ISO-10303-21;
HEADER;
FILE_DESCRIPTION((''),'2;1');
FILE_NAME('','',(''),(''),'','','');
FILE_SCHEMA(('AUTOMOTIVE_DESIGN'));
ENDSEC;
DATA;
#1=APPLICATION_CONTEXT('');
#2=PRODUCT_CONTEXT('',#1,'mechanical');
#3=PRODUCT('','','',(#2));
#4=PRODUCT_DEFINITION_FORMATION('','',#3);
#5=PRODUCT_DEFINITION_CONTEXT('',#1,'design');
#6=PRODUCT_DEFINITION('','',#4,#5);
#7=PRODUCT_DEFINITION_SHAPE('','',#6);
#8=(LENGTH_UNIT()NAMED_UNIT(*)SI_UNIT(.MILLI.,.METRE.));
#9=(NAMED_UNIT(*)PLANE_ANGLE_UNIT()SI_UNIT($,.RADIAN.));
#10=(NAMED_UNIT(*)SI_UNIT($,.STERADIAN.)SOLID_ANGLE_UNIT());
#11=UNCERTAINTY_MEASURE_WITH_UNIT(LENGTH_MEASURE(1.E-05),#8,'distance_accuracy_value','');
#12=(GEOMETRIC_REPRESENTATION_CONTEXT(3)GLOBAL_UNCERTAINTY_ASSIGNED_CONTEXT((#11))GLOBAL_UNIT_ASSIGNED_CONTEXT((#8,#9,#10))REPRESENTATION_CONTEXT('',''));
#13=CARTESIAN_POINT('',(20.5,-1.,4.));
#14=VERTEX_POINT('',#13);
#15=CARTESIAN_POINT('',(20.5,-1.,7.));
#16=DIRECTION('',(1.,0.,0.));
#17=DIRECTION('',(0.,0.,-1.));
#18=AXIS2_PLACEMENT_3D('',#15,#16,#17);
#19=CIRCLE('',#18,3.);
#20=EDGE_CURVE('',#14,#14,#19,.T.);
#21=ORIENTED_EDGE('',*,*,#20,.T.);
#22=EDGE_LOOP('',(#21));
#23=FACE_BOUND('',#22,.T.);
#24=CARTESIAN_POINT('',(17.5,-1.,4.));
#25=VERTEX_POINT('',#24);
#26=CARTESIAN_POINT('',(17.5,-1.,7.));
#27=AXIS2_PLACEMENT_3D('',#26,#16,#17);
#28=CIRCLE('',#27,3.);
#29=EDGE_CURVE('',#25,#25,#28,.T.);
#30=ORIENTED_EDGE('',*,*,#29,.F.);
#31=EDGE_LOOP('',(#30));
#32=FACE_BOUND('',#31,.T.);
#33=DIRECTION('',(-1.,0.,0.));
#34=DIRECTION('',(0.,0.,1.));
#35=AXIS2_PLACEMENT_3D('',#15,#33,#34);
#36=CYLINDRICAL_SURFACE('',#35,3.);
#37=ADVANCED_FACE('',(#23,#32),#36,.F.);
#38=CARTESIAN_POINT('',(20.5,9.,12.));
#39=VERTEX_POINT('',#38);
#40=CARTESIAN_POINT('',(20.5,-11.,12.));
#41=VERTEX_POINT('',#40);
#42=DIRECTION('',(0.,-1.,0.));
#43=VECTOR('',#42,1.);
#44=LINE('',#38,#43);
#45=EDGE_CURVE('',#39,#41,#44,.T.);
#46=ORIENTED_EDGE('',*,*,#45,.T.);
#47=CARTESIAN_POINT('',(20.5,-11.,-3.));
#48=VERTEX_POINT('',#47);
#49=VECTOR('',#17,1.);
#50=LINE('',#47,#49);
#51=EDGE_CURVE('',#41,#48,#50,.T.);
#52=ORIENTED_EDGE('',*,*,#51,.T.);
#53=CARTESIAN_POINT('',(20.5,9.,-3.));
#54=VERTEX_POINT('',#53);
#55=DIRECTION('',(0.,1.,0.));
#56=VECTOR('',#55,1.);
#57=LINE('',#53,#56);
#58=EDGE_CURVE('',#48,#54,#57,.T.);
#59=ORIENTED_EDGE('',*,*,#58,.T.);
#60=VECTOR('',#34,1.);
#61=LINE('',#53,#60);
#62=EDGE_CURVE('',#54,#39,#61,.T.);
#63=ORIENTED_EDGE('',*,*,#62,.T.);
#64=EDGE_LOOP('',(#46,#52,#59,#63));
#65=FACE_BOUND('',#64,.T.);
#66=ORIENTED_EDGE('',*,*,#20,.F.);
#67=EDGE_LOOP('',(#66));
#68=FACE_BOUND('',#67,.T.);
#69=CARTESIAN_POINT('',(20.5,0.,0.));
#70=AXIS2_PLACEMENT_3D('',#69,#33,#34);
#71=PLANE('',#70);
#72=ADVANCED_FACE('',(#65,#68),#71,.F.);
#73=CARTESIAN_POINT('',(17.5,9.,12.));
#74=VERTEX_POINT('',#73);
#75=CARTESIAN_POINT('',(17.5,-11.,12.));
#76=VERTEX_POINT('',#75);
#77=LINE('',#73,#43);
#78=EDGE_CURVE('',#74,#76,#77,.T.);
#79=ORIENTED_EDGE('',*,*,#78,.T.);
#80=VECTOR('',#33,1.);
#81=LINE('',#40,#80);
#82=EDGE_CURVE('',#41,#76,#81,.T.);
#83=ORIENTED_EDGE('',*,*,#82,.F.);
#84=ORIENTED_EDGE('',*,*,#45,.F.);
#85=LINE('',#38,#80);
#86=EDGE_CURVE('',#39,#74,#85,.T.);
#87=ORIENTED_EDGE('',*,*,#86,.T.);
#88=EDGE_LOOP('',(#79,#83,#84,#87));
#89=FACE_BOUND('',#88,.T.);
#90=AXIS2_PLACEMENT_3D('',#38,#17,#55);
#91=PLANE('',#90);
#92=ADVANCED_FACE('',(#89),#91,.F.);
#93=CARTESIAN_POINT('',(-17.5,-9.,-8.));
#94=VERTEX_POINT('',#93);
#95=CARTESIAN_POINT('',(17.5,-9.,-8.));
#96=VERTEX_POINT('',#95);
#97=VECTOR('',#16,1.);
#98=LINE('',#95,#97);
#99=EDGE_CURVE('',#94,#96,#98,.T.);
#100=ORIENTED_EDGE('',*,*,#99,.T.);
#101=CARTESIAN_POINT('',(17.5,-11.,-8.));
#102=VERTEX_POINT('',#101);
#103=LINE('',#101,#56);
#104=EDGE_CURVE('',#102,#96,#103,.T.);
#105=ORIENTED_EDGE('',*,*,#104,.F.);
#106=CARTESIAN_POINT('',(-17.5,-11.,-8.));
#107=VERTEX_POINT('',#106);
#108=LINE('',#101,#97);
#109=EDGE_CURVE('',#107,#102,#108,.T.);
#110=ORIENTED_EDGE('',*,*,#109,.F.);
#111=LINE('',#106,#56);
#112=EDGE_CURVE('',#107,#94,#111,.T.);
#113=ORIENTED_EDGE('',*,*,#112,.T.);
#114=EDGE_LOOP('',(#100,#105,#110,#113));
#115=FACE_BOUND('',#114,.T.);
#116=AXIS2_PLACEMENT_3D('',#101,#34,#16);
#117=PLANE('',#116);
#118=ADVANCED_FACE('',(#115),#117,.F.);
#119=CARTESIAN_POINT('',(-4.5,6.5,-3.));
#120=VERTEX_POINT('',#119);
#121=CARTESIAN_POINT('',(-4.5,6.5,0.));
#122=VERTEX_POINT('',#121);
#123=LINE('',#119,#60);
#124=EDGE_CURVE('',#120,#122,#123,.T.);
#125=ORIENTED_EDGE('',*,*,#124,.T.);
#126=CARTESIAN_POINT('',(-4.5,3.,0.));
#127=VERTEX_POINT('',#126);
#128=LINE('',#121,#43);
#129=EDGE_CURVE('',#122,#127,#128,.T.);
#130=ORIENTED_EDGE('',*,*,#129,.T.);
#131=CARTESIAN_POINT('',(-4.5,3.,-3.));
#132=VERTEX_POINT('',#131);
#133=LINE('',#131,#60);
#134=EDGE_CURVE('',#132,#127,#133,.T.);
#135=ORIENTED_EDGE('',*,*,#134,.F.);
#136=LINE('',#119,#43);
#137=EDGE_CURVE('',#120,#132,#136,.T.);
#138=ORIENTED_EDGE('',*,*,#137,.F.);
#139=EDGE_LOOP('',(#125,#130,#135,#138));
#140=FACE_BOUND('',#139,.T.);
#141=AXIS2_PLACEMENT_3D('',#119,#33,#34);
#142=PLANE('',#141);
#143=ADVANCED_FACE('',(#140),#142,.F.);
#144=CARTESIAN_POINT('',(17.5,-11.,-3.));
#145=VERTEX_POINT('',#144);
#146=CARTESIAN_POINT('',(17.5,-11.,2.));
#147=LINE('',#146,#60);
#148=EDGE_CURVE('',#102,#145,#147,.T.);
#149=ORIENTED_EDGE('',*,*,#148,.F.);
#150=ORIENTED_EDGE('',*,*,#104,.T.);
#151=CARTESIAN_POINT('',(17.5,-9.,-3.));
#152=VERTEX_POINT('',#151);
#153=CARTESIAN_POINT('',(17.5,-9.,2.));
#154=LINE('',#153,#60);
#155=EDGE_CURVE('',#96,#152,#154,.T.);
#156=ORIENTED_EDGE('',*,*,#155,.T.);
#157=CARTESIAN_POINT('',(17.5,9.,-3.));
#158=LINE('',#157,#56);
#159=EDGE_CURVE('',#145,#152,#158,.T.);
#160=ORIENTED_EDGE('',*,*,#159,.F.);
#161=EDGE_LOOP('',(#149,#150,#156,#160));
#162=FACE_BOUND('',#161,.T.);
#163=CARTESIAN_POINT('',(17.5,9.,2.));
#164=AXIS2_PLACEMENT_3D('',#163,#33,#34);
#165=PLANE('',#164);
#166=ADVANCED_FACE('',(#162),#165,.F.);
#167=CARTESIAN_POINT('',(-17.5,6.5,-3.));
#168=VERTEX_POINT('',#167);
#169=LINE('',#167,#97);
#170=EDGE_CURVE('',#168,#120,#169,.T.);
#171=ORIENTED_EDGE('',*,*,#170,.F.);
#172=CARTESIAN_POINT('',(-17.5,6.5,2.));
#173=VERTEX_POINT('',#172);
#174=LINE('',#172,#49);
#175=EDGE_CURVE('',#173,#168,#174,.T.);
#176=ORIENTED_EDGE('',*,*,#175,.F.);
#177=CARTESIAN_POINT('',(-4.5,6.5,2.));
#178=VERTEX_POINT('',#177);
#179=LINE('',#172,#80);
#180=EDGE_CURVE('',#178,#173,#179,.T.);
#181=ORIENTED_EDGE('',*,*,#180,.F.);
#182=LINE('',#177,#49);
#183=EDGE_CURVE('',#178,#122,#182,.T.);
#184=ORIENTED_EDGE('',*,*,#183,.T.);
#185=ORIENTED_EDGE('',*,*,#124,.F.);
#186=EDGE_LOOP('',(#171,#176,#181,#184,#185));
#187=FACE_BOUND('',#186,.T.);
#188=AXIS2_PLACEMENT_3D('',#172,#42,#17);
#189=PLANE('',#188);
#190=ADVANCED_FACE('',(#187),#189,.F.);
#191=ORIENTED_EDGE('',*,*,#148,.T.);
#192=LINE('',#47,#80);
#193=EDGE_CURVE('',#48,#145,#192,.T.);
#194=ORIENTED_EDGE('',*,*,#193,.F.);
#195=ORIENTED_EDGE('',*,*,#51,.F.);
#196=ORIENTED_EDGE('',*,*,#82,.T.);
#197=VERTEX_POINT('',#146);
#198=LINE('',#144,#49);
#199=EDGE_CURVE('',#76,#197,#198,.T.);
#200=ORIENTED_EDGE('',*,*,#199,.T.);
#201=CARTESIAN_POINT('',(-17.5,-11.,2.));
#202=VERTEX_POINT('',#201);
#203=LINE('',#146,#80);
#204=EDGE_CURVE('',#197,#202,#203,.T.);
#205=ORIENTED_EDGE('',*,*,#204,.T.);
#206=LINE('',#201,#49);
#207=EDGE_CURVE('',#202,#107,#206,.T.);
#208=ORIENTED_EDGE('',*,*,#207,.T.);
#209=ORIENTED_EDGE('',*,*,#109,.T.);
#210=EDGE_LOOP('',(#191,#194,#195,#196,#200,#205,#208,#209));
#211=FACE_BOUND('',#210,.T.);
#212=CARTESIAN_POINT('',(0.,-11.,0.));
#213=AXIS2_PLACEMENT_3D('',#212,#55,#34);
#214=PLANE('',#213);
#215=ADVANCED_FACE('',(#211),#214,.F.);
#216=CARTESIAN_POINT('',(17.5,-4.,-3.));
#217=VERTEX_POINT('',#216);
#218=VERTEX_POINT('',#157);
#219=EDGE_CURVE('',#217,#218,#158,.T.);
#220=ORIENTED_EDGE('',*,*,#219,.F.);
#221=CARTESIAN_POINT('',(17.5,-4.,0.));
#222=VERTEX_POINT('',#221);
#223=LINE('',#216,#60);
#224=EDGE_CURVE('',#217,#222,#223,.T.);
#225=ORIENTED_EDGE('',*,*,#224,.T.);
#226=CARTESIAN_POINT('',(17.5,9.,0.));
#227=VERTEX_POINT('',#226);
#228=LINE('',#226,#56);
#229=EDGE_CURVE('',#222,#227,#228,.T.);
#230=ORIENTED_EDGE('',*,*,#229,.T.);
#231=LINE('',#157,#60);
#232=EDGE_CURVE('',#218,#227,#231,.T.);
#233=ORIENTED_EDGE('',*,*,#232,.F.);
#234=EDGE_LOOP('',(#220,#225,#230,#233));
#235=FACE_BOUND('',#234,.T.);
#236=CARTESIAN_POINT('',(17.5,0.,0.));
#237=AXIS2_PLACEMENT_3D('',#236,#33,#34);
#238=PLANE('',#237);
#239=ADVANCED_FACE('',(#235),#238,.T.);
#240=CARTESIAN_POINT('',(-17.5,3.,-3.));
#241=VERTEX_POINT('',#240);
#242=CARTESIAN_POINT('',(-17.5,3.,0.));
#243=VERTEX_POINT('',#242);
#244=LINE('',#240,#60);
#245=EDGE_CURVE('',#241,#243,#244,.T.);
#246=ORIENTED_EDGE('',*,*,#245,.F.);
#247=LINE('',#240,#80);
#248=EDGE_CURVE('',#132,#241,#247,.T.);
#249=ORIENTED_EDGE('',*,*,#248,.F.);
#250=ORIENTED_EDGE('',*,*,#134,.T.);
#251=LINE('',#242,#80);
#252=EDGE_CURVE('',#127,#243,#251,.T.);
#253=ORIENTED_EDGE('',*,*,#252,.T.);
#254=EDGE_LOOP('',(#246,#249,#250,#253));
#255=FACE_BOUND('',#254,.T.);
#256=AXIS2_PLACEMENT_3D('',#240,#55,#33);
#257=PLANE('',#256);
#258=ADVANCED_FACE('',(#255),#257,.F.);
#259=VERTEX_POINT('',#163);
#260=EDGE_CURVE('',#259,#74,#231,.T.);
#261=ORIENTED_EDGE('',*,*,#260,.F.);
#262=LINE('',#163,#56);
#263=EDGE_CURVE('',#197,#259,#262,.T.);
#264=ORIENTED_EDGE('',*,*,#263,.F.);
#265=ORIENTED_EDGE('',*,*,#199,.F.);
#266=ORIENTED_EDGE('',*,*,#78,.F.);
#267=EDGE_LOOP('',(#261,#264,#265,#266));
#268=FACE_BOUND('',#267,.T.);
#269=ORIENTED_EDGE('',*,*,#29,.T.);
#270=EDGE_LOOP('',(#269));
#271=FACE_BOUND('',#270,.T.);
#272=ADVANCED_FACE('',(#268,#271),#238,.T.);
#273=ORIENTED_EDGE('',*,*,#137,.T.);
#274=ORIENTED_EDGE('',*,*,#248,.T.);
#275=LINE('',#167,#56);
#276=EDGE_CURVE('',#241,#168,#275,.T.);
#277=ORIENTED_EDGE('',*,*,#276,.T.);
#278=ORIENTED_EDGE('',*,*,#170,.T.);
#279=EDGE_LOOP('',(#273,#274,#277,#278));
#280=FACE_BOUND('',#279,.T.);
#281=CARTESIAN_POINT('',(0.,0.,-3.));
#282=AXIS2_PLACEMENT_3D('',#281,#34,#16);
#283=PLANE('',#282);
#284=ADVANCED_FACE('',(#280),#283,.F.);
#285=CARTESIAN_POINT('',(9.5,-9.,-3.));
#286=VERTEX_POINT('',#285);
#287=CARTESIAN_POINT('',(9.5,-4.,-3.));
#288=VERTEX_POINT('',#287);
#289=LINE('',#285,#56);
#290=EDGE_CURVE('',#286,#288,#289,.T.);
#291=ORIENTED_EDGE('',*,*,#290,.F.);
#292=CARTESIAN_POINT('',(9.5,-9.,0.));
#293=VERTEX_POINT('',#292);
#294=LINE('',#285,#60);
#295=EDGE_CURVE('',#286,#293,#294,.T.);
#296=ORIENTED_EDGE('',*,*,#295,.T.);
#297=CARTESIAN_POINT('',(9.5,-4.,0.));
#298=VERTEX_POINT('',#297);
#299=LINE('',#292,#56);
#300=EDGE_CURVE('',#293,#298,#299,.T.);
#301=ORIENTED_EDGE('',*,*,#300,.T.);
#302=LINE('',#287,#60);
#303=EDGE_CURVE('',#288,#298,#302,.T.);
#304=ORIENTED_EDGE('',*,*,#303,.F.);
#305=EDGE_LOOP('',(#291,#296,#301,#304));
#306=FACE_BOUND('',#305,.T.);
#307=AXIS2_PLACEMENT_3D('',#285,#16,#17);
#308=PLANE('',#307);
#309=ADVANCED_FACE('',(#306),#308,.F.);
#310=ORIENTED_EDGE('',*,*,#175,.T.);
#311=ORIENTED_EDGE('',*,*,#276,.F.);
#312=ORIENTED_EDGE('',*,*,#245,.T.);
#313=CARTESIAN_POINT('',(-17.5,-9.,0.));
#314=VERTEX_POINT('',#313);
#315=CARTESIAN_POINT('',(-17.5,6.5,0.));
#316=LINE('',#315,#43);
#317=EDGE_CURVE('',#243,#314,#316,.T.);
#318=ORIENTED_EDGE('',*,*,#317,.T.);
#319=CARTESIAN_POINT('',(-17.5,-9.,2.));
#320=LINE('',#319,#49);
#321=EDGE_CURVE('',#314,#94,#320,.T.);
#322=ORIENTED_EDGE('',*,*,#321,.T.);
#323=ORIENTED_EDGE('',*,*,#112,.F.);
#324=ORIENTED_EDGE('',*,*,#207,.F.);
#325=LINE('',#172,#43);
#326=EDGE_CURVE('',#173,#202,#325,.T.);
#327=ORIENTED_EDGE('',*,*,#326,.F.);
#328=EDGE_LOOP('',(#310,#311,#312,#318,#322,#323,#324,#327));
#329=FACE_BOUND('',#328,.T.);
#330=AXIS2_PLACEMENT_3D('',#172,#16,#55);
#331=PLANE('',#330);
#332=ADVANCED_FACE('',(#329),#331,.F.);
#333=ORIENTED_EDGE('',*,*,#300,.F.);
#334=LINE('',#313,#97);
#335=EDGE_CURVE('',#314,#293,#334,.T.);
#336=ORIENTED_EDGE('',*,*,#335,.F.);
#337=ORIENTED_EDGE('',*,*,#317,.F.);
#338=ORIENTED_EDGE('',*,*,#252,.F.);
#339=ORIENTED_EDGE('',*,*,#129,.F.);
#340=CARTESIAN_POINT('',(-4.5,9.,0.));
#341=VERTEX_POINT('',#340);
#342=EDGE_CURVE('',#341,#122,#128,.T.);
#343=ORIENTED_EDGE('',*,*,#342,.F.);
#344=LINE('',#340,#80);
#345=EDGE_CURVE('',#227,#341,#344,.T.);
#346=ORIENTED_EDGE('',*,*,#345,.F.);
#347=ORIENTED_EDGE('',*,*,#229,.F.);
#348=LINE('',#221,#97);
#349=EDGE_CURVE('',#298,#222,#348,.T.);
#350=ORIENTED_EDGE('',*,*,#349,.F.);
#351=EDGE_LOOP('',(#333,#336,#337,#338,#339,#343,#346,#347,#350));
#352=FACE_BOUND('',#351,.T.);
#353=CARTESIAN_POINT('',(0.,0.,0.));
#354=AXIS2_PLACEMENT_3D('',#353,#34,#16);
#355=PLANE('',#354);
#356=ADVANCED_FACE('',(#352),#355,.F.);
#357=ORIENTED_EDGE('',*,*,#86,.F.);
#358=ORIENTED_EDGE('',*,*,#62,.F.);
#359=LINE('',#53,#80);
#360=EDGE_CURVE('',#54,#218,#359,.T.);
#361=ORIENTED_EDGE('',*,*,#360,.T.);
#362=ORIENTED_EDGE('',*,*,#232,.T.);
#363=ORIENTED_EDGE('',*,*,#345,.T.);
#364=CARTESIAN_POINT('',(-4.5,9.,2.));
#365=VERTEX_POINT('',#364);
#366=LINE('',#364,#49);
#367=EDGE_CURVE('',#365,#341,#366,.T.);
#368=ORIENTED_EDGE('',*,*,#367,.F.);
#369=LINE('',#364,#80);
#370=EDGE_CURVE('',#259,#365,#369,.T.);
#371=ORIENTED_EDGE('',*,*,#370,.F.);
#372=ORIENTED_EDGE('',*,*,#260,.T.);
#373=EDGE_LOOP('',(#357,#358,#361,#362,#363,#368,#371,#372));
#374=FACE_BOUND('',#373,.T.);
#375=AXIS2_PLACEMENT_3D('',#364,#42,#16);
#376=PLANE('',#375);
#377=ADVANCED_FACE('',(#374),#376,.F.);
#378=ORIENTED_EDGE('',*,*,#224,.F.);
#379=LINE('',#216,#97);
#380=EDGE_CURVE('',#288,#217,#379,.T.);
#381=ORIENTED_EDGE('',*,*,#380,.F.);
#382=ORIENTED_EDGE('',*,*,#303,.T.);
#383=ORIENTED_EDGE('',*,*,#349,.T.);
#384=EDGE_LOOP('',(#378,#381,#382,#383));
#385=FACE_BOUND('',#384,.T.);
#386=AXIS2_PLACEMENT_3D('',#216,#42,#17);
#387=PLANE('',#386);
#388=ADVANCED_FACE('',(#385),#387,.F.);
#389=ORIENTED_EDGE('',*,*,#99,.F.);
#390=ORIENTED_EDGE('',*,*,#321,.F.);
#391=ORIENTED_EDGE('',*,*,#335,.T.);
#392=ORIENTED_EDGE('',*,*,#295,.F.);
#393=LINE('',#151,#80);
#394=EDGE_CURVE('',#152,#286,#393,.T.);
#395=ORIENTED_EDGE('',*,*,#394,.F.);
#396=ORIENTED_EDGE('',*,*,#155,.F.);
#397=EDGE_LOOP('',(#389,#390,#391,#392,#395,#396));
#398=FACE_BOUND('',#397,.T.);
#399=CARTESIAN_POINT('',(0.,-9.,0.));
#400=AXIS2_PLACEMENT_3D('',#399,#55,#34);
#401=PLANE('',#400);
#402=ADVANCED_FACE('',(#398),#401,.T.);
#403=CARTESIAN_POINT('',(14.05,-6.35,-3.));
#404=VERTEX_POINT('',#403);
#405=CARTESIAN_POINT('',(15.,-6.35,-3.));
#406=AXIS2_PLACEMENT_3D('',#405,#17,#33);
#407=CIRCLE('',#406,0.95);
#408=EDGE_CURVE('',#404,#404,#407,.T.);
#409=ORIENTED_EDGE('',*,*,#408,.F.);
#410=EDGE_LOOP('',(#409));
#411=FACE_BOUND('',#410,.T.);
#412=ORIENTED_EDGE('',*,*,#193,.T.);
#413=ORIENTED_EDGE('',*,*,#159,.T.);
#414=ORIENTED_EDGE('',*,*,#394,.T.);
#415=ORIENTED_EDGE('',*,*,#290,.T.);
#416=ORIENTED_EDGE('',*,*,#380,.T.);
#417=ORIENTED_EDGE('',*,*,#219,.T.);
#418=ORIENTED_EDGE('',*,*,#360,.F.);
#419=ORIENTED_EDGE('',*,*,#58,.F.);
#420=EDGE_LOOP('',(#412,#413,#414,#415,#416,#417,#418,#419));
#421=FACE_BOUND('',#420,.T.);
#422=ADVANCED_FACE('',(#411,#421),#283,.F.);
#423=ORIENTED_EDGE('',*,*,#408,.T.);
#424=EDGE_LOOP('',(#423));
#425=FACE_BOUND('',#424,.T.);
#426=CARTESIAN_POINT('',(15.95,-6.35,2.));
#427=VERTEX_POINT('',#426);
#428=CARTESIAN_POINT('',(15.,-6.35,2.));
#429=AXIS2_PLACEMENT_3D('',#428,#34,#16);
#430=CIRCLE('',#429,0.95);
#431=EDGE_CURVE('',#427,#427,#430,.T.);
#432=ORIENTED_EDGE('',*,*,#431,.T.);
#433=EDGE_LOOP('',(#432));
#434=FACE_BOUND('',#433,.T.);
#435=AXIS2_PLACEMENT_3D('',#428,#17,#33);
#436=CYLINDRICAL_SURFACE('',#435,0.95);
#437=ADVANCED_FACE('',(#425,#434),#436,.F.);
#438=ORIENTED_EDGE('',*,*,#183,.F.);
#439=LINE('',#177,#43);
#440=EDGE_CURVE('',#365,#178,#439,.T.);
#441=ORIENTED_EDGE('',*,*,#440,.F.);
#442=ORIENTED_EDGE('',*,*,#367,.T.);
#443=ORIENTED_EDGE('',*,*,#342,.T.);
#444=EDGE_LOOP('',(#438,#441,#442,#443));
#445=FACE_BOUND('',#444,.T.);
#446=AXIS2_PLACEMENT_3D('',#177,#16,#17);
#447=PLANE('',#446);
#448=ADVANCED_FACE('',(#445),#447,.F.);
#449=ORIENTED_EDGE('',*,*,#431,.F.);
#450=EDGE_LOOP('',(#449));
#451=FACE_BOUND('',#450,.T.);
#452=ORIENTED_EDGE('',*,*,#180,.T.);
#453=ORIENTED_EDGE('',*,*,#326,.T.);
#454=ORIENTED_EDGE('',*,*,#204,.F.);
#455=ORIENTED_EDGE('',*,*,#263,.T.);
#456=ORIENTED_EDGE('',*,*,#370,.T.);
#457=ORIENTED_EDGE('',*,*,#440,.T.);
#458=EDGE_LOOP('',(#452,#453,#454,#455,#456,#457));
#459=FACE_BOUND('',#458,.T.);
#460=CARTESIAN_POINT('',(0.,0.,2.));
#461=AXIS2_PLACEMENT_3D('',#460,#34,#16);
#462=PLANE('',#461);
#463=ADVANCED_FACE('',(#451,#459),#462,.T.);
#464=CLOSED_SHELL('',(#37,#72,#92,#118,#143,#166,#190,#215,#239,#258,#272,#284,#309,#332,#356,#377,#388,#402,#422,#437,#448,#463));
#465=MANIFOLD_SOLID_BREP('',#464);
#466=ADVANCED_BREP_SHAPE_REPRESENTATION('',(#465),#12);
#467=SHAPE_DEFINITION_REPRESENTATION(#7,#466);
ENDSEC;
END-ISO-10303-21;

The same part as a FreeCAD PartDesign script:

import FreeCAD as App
import Part
import Sketcher
Q = App.Units.Quantity


def add_polygon(sketch, points):
    """Adds a closed chain of lines whose ends are joined by coincident constraints."""
    first, n = sketch.GeometryCount, len(points)
    for a, b in zip(points, points[1:] + points[:1]):
        sketch.addGeometry(Part.LineSegment(App.Vector(*a, 0), App.Vector(*b, 0)), False)
    for i in range(n):
        sketch.addConstraint(Sketcher.Constraint("Coincident", first + i, 2, first + (i + 1) % n, 1))

doc = App.newDocument("Part")
body = doc.addObject("PartDesign::Body", "Body")

# Sketch on XY plane
sketch1 = body.newObject("Sketcher::SketchObject", "Sketch")
sketch1.AttachmentSupport = (doc.getObject("XY_Plane"), [""])
sketch1.MapMode = "FlatFace"
add_polygon(sketch1, [(-4.5, 6.5), (-17.5, 6.5), (-17.5, -9), (17.5, -9), (17.5, 9), (-4.5, 9)])  # lines 0-5
sketch1.addGeometry(Part.Circle(App.Vector(15, -6.35, 0), App.Vector(0, 0, 1), 0.95), False)  # 6
sketch1.addConstraint([
    Sketcher.Constraint("Horizontal", 0),
    Sketcher.Constraint("Vertical", 1),
    Sketcher.Constraint("Horizontal", 2),
    Sketcher.Constraint("Vertical", 3),
    Sketcher.Constraint("Horizontal", 4),
    Sketcher.Constraint("Vertical", 5),
    Sketcher.Constraint("Symmetric", 1, 2, 3, 2, -1, 1),
    Sketcher.Constraint("Diameter", 6, Q("1.9 mm")),
    Sketcher.Constraint("DistanceX", 0, 2, 0, 1, Q("13 mm")),
    Sketcher.Constraint("DistanceX", 2, 1, 2, 2, Q("35 mm")),
    Sketcher.Constraint("DistanceY", 3, 1, 3, 2, Q("18 mm")),
    Sketcher.Constraint("DistanceY", 1, 2, 1, 1, Q("15.5 mm")),
    Sketcher.Constraint("DistanceX", -1, 1, 6, 3, Q("15 mm")),
    Sketcher.Constraint("DistanceY", 6, 3, -1, 1, Q("6.35 mm")),
])
pad1 = body.newObject("PartDesign::Pad", "Pad")
pad1.Profile = sketch1
pad1.Length = 2

# Sketch on XY plane
sketch2 = body.newObject("Sketcher::SketchObject", "Sketch001")
sketch2.AttachmentSupport = (doc.getObject("XY_Plane"), [""])
sketch2.MapMode = "FlatFace"
sketch2.AttachmentOffset = App.Placement(App.Vector(0, 0, -3), App.Rotation())
add_polygon(sketch2, [(17.5, -4), (17.5, -9), (9.5, -9), (9.5, -4)])  # lines 0-3
sketch2.addGeometry(Part.Circle(App.Vector(15, -6.35, 0), App.Vector(0, 0, 1), 0.95), False)  # 4
add_polygon(sketch2, [(-4.5, 6.5), (-4.5, 3), (-17.5, 3), (-17.5, 6.5)])  # lines 5-8
sketch2.addConstraint([
    Sketcher.Constraint("Vertical", 0),
    Sketcher.Constraint("Horizontal", 1),
    Sketcher.Constraint("Vertical", 2),
    Sketcher.Constraint("Horizontal", 3),
    Sketcher.Constraint("Vertical", 5),
    Sketcher.Constraint("Horizontal", 6),
    Sketcher.Constraint("Vertical", 7),
    Sketcher.Constraint("Horizontal", 8),
    Sketcher.Constraint("Diameter", 4, Q("1.9 mm")),
    Sketcher.Constraint("DistanceX", 1, 2, 1, 1, Q("8 mm")),
    Sketcher.Constraint("DistanceX", 6, 2, 6, 1, Q("13 mm")),
    Sketcher.Constraint("DistanceY", 0, 2, 0, 1, Q("5 mm")),
    Sketcher.Constraint("DistanceY", 5, 2, 5, 1, Q("3.5 mm")),
    Sketcher.Constraint("DistanceX", -1, 1, 4, 3, Q("15 mm")),
    Sketcher.Constraint("DistanceY", 0, 2, -1, 1, Q("9 mm")),
    Sketcher.Constraint("DistanceY", -1, 1, 5, 2, Q("3 mm")),
    Sketcher.Constraint("DistanceX", 5, 2, 2, 2, Q("14 mm")),
    Sketcher.Constraint("DistanceX", -1, 1, 0, 2, Q("17.5 mm")),
    Sketcher.Constraint("DistanceY", 4, 3, -1, 1, Q("6.35 mm")),
])
pad2 = body.newObject("PartDesign::Pad", "Pad001")
pad2.Profile = sketch2
pad2.Length = 3

# Sketch on XZ plane
sketch3 = body.newObject("Sketcher::SketchObject", "Sketch002")
sketch3.AttachmentSupport = (doc.getObject("XZ_Plane"), [""])
sketch3.MapMode = "FlatFace"
sketch3.AttachmentOffset = App.Placement(App.Vector(0, 0, 9), App.Rotation())
add_polygon(sketch3, [(-17.5, 2), (-17.5, -8), (17.5, -8), (17.5, 2)])  # lines 0-3
sketch3.addConstraint([
    Sketcher.Constraint("Vertical", 0),
    Sketcher.Constraint("Horizontal", 1),
    Sketcher.Constraint("Vertical", 2),
    Sketcher.Constraint("Horizontal", 3),
    Sketcher.Constraint("DistanceX", 1, 1, 1, 2, Q("35 mm")),
    Sketcher.Constraint("DistanceY", 0, 2, 0, 1, Q("10 mm")),
    Sketcher.Constraint("DistanceY", 0, 2, -1, 1, Q("8 mm")),
    Sketcher.Constraint("DistanceX", 0, 2, -1, 1, Q("17.5 mm")),
])
pad3 = body.newObject("PartDesign::Pad", "Pad002")
pad3.Profile = sketch3
pad3.Length = 2

# Sketch on YZ plane
sketch4 = body.newObject("Sketcher::SketchObject", "Sketch003")
sketch4.AttachmentSupport = (doc.getObject("YZ_Plane"), [""])
sketch4.MapMode = "FlatFace"
sketch4.AttachmentOffset = App.Placement(App.Vector(0, 0, 17.5), App.Rotation())
add_polygon(sketch4, [(9, 12), (-11, 12), (-11, -3), (9, -3)])  # lines 0-3
sketch4.addGeometry(Part.Circle(App.Vector(-1, 7, 0), App.Vector(0, 0, 1), 3), False)  # 4
sketch4.addConstraint([
    Sketcher.Constraint("Horizontal", 0),
    Sketcher.Constraint("Vertical", 1),
    Sketcher.Constraint("Horizontal", 2),
    Sketcher.Constraint("Vertical", 3),
    Sketcher.Constraint("Diameter", 4, Q("6 mm")),
    Sketcher.Constraint("DistanceX", 0, 2, 0, 1, Q("20 mm")),
    Sketcher.Constraint("DistanceY", 1, 2, 1, 1, Q("15 mm")),
    Sketcher.Constraint("DistanceX", 4, 3, -1, 1, Q("1 mm")),
    Sketcher.Constraint("DistanceY", -1, 1, 4, 3, Q("7 mm")),
    Sketcher.Constraint("DistanceX", 0, 2, -1, 1, Q("11 mm")),
    Sketcher.Constraint("DistanceY", -1, 1, 0, 2, Q("12 mm")),
])
pad4 = body.newObject("PartDesign::Pad", "Pad003")
pad4.Profile = sketch4
pad4.Length = 3

doc.recompute()
